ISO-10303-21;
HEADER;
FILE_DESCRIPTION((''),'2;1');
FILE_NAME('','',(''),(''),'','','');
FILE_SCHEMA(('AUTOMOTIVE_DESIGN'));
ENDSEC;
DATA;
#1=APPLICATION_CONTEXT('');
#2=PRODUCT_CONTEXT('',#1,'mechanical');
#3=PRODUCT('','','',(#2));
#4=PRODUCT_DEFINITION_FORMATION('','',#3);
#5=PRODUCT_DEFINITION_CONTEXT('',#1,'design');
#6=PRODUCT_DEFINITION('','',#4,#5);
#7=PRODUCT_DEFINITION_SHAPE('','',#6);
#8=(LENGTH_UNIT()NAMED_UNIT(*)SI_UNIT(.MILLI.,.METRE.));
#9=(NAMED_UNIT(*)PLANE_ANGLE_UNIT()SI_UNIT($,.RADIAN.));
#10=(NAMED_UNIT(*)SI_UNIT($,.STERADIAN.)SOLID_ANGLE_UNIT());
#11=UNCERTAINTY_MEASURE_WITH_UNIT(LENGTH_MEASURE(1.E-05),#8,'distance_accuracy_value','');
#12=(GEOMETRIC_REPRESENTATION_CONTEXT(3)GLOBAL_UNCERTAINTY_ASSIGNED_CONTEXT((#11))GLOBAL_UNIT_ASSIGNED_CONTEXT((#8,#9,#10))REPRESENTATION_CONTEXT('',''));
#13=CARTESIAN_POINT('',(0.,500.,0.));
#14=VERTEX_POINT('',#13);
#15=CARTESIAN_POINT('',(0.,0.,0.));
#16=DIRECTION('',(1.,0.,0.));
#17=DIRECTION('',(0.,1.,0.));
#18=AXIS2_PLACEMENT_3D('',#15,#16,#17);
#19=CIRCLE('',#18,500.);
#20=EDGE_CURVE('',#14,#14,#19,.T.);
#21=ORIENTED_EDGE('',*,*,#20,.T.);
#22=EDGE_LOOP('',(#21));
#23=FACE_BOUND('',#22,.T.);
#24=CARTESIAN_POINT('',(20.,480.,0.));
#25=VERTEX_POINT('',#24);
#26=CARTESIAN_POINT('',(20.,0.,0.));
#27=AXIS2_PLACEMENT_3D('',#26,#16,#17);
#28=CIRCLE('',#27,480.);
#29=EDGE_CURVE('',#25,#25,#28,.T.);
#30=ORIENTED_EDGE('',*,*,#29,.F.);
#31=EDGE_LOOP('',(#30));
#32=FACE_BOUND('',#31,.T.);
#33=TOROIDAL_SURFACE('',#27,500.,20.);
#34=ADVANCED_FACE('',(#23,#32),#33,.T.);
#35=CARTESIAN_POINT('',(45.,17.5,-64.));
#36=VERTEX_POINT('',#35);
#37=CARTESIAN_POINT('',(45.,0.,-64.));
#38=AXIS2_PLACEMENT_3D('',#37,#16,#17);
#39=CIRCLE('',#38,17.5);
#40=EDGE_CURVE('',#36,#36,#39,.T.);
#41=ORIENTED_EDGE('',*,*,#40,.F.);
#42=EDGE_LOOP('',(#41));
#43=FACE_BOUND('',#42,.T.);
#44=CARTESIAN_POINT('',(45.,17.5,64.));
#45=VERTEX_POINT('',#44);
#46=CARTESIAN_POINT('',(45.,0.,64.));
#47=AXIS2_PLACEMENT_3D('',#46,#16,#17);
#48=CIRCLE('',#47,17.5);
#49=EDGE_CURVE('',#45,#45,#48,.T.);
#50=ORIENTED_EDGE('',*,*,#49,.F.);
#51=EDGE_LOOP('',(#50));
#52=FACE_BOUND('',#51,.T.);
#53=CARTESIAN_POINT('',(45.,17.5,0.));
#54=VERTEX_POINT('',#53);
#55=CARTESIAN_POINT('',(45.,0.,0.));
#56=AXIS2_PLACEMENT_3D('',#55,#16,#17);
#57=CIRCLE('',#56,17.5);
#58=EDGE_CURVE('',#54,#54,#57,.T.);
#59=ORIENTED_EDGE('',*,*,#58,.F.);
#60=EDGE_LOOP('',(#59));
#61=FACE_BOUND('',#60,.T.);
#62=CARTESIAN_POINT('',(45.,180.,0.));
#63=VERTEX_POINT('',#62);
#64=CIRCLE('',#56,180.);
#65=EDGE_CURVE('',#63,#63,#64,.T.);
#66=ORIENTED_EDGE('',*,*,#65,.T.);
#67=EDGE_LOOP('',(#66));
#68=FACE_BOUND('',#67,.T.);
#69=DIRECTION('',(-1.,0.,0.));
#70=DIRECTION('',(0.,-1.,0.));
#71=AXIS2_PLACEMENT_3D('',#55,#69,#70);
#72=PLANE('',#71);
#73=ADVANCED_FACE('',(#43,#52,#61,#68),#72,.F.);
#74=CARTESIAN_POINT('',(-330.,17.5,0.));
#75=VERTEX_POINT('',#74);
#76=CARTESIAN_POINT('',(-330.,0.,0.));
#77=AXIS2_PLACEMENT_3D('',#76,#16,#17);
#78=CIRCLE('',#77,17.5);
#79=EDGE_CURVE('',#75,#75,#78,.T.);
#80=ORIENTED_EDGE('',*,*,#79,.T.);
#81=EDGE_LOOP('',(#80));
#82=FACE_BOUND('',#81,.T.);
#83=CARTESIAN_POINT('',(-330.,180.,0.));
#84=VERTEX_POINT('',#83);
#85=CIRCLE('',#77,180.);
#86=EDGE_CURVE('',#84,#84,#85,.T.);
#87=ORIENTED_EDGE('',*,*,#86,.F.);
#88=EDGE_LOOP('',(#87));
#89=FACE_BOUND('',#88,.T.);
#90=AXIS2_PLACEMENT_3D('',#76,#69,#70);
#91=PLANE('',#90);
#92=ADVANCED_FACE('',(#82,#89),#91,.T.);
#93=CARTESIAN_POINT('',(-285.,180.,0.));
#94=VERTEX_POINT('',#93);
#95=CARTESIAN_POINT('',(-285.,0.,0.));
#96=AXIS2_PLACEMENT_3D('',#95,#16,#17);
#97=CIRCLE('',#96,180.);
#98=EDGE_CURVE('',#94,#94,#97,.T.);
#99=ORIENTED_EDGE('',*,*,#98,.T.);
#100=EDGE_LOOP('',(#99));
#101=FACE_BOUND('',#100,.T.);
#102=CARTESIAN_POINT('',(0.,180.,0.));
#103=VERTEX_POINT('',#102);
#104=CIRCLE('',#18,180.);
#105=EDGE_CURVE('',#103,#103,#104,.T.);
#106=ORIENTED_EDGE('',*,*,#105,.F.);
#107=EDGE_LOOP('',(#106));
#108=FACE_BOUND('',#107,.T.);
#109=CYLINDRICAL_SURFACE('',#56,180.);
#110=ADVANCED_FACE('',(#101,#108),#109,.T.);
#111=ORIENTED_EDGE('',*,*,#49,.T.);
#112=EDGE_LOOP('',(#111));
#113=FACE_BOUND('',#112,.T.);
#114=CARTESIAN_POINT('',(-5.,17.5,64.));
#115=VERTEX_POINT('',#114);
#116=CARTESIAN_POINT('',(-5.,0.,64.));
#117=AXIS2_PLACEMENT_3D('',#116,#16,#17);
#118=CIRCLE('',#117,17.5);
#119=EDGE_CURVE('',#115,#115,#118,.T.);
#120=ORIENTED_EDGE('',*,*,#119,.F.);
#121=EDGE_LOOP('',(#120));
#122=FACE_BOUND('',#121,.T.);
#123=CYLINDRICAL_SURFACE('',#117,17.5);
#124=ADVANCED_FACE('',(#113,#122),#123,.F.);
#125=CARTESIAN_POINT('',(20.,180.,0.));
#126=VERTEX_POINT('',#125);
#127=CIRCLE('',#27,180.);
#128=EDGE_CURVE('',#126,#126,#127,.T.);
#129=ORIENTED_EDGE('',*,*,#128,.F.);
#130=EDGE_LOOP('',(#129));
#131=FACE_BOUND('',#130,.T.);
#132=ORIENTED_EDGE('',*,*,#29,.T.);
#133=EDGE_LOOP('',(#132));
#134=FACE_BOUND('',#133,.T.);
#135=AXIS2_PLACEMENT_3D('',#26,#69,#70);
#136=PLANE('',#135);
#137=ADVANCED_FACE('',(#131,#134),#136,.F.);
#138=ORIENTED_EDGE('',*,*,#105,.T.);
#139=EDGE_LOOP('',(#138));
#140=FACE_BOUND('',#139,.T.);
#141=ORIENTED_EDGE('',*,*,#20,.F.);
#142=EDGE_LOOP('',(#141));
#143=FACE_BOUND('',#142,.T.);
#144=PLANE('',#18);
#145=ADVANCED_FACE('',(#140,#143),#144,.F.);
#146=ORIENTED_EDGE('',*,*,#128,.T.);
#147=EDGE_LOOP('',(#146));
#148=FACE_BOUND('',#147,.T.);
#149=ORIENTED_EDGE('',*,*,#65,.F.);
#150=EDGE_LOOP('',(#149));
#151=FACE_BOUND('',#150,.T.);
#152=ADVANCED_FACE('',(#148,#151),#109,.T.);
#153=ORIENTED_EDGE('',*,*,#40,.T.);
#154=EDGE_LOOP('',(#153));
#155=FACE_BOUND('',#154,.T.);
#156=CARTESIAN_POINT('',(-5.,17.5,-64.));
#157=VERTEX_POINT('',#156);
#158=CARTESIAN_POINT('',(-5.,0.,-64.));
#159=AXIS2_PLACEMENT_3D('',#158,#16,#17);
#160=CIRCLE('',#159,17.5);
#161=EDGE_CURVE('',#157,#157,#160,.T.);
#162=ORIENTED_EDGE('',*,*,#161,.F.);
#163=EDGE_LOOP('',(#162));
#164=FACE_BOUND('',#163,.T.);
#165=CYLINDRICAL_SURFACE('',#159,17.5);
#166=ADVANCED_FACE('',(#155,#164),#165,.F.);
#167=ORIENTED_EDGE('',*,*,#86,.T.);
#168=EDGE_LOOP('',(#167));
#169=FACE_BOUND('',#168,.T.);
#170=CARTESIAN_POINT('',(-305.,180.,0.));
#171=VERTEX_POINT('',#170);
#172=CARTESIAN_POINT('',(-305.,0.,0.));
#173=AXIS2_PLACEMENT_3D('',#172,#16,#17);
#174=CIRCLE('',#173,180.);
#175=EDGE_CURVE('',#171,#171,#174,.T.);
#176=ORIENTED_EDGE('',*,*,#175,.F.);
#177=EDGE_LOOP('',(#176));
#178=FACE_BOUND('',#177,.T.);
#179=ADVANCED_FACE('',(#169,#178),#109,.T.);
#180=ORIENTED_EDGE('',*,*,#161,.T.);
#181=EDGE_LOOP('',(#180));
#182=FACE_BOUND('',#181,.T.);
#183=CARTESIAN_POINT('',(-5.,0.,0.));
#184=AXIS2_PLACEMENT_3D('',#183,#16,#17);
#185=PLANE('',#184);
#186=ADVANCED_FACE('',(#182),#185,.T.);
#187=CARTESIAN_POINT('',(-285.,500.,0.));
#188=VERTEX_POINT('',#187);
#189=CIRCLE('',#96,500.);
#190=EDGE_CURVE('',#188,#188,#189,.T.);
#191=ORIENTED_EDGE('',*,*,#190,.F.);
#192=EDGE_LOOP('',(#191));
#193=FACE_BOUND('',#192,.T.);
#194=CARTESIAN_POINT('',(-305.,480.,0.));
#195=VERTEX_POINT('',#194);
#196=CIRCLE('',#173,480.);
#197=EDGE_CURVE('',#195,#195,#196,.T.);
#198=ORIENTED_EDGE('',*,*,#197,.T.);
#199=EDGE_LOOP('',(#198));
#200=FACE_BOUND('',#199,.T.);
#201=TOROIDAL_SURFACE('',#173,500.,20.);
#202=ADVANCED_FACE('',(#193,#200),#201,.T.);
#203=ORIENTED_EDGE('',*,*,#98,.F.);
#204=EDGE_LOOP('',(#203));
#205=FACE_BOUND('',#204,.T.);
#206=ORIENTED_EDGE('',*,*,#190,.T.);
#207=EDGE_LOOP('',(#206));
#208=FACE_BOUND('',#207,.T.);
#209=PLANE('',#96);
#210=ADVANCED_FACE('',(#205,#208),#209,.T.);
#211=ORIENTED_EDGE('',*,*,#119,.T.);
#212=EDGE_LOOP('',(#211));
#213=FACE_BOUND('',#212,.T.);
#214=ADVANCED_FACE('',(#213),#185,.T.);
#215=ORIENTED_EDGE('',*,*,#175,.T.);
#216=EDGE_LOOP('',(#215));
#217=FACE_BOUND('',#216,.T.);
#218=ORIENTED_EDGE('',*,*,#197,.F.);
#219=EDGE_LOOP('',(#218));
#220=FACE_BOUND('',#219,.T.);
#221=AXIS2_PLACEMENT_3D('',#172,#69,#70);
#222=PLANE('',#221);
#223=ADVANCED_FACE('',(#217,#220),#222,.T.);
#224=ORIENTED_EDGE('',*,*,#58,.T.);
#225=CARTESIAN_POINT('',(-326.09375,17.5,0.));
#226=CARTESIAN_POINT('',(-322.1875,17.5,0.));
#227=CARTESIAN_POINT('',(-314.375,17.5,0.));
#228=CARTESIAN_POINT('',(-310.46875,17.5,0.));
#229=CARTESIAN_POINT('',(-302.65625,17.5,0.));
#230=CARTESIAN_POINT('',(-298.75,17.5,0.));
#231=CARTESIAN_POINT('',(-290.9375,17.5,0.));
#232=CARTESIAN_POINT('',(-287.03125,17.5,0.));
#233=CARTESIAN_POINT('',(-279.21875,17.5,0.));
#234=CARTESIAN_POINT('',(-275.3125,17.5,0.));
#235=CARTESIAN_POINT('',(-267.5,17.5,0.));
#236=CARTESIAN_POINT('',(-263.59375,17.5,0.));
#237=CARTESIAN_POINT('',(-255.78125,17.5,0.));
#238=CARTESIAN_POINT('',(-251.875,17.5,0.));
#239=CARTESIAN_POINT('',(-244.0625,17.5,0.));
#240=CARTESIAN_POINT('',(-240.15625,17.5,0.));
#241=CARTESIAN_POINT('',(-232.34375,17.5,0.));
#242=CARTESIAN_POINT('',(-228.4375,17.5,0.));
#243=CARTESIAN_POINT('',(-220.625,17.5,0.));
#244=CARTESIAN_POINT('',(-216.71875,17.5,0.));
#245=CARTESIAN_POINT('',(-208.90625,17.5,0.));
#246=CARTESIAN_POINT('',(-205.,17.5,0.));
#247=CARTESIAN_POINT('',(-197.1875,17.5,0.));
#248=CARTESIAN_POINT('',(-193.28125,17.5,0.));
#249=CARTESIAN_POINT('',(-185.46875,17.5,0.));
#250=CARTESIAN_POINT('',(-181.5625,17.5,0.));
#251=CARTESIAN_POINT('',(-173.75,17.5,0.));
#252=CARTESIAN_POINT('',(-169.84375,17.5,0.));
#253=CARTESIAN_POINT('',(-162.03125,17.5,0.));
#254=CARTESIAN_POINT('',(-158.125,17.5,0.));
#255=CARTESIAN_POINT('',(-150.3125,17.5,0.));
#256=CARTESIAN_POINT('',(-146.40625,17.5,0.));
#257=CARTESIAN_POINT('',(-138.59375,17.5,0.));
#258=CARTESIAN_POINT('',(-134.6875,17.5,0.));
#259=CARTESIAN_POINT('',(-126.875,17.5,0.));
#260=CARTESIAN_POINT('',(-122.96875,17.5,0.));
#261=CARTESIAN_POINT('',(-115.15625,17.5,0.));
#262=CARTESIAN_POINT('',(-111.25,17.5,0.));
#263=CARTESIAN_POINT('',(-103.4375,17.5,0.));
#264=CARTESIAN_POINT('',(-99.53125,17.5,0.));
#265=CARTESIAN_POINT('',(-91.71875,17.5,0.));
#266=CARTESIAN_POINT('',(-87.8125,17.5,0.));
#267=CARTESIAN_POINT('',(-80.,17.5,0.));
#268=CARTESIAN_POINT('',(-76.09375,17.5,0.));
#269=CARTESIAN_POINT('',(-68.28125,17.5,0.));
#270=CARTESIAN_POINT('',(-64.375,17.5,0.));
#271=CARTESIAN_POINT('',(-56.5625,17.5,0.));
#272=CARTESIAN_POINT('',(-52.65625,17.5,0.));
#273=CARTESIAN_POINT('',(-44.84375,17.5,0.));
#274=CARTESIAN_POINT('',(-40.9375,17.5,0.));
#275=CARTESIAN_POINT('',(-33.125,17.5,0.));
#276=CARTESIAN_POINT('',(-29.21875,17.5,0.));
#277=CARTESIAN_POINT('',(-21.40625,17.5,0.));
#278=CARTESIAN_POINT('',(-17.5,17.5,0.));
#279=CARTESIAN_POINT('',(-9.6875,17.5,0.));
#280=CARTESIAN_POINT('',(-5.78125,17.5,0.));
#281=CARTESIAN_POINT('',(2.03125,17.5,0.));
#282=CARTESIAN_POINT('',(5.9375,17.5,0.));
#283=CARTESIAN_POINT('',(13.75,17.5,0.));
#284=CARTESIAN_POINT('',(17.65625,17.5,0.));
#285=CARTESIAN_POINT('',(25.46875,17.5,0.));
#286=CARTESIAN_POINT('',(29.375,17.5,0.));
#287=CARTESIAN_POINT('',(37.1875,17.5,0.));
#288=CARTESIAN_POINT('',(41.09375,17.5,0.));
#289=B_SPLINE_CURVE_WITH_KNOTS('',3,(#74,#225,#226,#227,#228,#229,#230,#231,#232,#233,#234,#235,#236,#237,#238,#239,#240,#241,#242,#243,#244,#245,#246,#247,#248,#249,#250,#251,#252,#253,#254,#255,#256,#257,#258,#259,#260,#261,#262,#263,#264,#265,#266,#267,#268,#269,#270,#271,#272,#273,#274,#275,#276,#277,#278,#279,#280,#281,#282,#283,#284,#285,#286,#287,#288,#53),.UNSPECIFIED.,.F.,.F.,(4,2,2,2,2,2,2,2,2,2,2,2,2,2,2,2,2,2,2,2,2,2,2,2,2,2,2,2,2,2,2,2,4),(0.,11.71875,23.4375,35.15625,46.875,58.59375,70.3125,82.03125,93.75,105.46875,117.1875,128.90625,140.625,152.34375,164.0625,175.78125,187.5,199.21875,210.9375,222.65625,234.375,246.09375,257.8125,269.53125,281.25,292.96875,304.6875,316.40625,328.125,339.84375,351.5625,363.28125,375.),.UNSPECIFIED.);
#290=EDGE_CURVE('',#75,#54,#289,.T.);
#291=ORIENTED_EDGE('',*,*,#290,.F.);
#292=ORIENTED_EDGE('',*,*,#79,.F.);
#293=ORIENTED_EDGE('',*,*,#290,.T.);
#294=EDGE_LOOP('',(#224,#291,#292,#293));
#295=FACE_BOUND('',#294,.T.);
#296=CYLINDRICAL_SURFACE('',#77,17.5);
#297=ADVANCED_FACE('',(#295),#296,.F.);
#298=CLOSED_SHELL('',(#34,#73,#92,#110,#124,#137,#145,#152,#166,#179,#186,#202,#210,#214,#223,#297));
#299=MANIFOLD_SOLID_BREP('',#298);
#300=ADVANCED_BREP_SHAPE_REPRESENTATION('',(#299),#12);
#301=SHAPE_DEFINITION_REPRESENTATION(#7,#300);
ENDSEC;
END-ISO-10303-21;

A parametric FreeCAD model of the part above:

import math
import FreeCAD as App
import Part
import Sketcher

V = App.Vector

doc = App.newDocument("Part")
body = doc.addObject("PartDesign::Body", "Body")

# Sketch on XY plane
sketch1 = doc.addObject("Sketcher::SketchObject", "Sketch")
body.addObject(sketch1)
sketch1.AttachmentSupport = (doc.XY_Plane, [""])
sketch1.MapMode = "FlatFace"
sketch1.addGeometry([
    Part.ArcOfCircle(Part.Circle(V(20, 500, 0), V(0, 0, 1), 20), math.radians(-90), math.radians(180)),  # 0
    Part.LineSegment(V(0, 500, 0), V(0, 180, 0)),  # 1
    Part.LineSegment(V(0, 180, 0), V(-285, 180, 0)),  # 2
    Part.LineSegment(V(-285, 180, 0), V(-285, 500, 0)),  # 3
    Part.ArcOfCircle(Part.Circle(V(-305, 500, 0), V(0, 0, 1), 20), math.radians(0), math.radians(270)),  # 4
    Part.LineSegment(V(-305, 480, 0), V(-305, 180, 0)),  # 5
    Part.LineSegment(V(-305, 180, 0), V(-330, 180, 0)),  # 6
    Part.LineSegment(V(-330, 180, 0), V(-330, 0, 0)),  # 7
    Part.LineSegment(V(-330, 0, 0), V(45, 0, 0)),  # 8
    Part.LineSegment(V(45, 0, 0), V(45, 180, 0)),  # 9
    Part.LineSegment(V(45, 180, 0), V(20, 180, 0)),  # 10
    Part.LineSegment(V(20, 180, 0), V(20, 480, 0)),  # 11
], False)
sketch1.addConstraint([
    Sketcher.Constraint("Tangent", 0, 2, 1, 1),
    Sketcher.Constraint("Coincident", 1, 2, 2, 1),
    Sketcher.Constraint("Coincident", 2, 2, 3, 1),
    Sketcher.Constraint("Tangent", 3, 2, 4, 1),
    Sketcher.Constraint("Coincident", 4, 2, 5, 1),
    Sketcher.Constraint("Coincident", 5, 2, 6, 1),
    Sketcher.Constraint("Coincident", 6, 2, 7, 1),
    Sketcher.Constraint("Coincident", 7, 2, 8, 1),
    Sketcher.Constraint("Coincident", 8, 2, 9, 1),
    Sketcher.Constraint("Coincident", 9, 2, 10, 1),
    Sketcher.Constraint("Coincident", 10, 2, 11, 1),
    Sketcher.Constraint("Coincident", 11, 2, 0, 1),
    Sketcher.Constraint("Vertical", 1),
    Sketcher.Constraint("Horizontal", 2),
    Sketcher.Constraint("Vertical", 3),
    Sketcher.Constraint("Vertical", 5),
    Sketcher.Constraint("Horizontal", 6),
    Sketcher.Constraint("Vertical", 7),
    Sketcher.Constraint("Horizontal", 8),
    Sketcher.Constraint("Vertical", 9),
    Sketcher.Constraint("Horizontal", 10),
    Sketcher.Constraint("Vertical", 11),
    Sketcher.Constraint("Equal", 0, 4),
    Sketcher.Constraint("PointOnObject", 0, 2, -2),
    Sketcher.Constraint("PointOnObject", 7, 2, -1),
    Sketcher.Constraint("Horizontal", 0, 3, 4, 3),
    Sketcher.Constraint("Horizontal", 2, 2, 5, 2),
    Sketcher.Constraint("Horizontal", 6, 2, 9, 2),
    Sketcher.Constraint("Vertical", 0, 3, 10, 2),
    Sketcher.Constraint("Equal", 6, 10),
    Sketcher.Constraint("Radius", 0, 20.0),
    Sketcher.Constraint("DistanceX", 2, 2, 2, 1, 285.0),
    Sketcher.Constraint("DistanceX", 6, 2, 6, 1, 25.0),
    Sketcher.Constraint("DistanceX", 8, 1, 8, 2, 375.0),
    Sketcher.Constraint("DistanceY", 1, 2, 1, 1, 320.0),
    Sketcher.Constraint("DistanceY", 7, 2, 7, 1, 180.0),
])
revolution = doc.addObject("PartDesign::Revolution", "Revolution")
body.addObject(revolution)
revolution.Profile = sketch1
revolution.ReferenceAxis = (sketch1, ["H_Axis"])
revolution.Angle = 360

# Sketch on YZ plane
sketch2 = doc.addObject("Sketcher::SketchObject", "Sketch001")
body.addObject(sketch2)
sketch2.AttachmentSupport = (doc.YZ_Plane, [""])
sketch2.MapMode = "FlatFace"
sketch2.AttachmentOffset = App.Placement(V(0, 0, 45), App.Rotation())
sketch2.addGeometry(Part.Circle(V(0, 0, 0), V(0, 0, 1), 18), False)
sketch2.addConstraint([
    Sketcher.Constraint("Coincident", 0, 3, -1, 1),
    Sketcher.Constraint("Diameter", 0, 35.0),
])
pocket1 = doc.addObject("PartDesign::Pocket", "Pocket")
body.addObject(pocket1)
pocket1.Profile = sketch2
pocket1.Type = "ThroughAll"

# Sketch on YZ plane
sketch3 = doc.addObject("Sketcher::SketchObject", "Sketch002")
body.addObject(sketch3)
sketch3.AttachmentSupport = (doc.YZ_Plane, [""])
sketch3.MapMode = "FlatFace"
sketch3.AttachmentOffset = App.Placement(V(0, 0, 45), App.Rotation())
sketch3.addGeometry([
    Part.Circle(V(0, -64, 0), V(0, 0, 1), 18),
    Part.Circle(V(0, 64, 0), V(0, 0, 1), 18),
], False)
sketch3.addConstraint([
    Sketcher.Constraint("Equal", 0, 1),
    Sketcher.Constraint("Symmetric", 0, 3, 1, 3, -1, 1),
    Sketcher.Constraint("PointOnObject", 0, 3, -2),
    Sketcher.Constraint("Diameter", 0, 35.0),
    Sketcher.Constraint("DistanceY", 0, 3, -1, 1, 64.0),
])
pocket2 = doc.addObject("PartDesign::Pocket", "Pocket001")
body.addObject(pocket2)
pocket2.Profile = sketch3
pocket2.Length = 50

doc.recompute()
